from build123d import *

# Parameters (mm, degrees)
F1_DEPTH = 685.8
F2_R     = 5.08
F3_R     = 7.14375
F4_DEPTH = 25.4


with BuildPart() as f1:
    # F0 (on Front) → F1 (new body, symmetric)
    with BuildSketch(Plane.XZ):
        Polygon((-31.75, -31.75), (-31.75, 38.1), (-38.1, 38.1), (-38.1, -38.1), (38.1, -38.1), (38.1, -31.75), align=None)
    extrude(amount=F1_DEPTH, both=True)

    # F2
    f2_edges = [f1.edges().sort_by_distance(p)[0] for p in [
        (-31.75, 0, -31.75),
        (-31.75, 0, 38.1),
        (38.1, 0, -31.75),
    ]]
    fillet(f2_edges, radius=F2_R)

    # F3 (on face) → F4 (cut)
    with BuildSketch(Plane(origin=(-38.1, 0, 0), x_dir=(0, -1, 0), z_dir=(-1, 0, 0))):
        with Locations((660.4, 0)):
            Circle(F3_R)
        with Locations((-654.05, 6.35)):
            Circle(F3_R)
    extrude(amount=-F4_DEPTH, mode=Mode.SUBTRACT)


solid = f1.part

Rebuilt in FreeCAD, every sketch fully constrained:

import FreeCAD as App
import Part
import Sketcher
Q = App.Units.Quantity


def edges_at(feature, points):
    """Names of the edges that pass closest to the given points."""
    edges = feature.Shape.Edges
    near = lambda p: min(range(len(edges)), key=lambda i: edges[i].distToShape(Part.Vertex(*p))[0])
    return sorted({f"Edge{near(p) + 1}" for p in points})

doc = App.newDocument("Part")
body = doc.addObject("PartDesign::Body", "Body")

sketch1 = body.newObject("Sketcher::SketchObject", "Sketch")
sketch1.AttachmentSupport = (doc.getObject("XZ_Plane"), [""])
sketch1.MapMode = "FlatFace"
sketch1.addGeometry([
    Part.LineSegment(App.Vector(-31.75, -31.75, 0), App.Vector(-31.75, 38.1, 0)),
    Part.LineSegment(App.Vector(-31.75, 38.1, 0), App.Vector(-38.1, 38.1, 0)),
    Part.LineSegment(App.Vector(-38.1, 38.1, 0), App.Vector(-38.1, -38.1, 0)),
    Part.LineSegment(App.Vector(-38.1, -38.1, 0), App.Vector(38.1, -38.1, 0)),
    Part.LineSegment(App.Vector(38.1, -38.1, 0), App.Vector(38.1, -31.75, 0)),
    Part.LineSegment(App.Vector(38.1, -31.75, 0), App.Vector(-31.75, -31.75, 0)),
], False)
sketch1.addConstraint([
    Sketcher.Constraint("Coincident", 0, 2, 1, 1),
    Sketcher.Constraint("Coincident", 1, 2, 2, 1),
    Sketcher.Constraint("Coincident", 2, 2, 3, 1),
    Sketcher.Constraint("Coincident", 3, 2, 4, 1),
    Sketcher.Constraint("Coincident", 4, 2, 5, 1),
    Sketcher.Constraint("Coincident", 5, 2, 0, 1),
    Sketcher.Constraint("Vertical", 0),
    Sketcher.Constraint("Horizontal", 1),
    Sketcher.Constraint("Vertical", 2),
    Sketcher.Constraint("Horizontal", 3),
    Sketcher.Constraint("Vertical", 4),
    Sketcher.Constraint("Horizontal", 5),
    Sketcher.Constraint("Symmetric", 1, 2, 3, 2, -1, 1),
    Sketcher.Constraint("Equal", 5, 0),
    Sketcher.Constraint("Equal", 3, 2),
    Sketcher.Constraint("DistanceX", 3, 1, 3, 2, Q("3 in")),
    Sketcher.Constraint("DistanceX", 1, 2, 1, 1, Q("0.25 in")),
])
pad1 = body.newObject("PartDesign::Pad", "Pad")
pad1.Profile = sketch1
pad1.Length = Q("54 in")
pad1.Midplane = True
doc.recompute()

fillet = body.newObject("PartDesign::Fillet", "Fillet")
fillet.Base = (pad1, edges_at(pad1, [(-31.75, 0, -31.75), (-31.75, 0, 38.1), (38.1, 0, -31.75)]))
fillet.Radius = Q("0.2 in")

sketch2 = body.newObject("Sketcher::SketchObject", "Sketch001")
sketch2.AttachmentSupport = (doc.getObject("YZ_Plane"), [""])
sketch2.MapMode = "FlatFace"
sketch2.AttachmentOffset = App.Placement(App.Vector(0, 0, -1.5 * 25.4), App.Rotation())
sketch2.addGeometry([
    Part.Circle(App.Vector(-660.4, 0, 0), App.Vector(0, 0, 1), 7.14375),
    Part.Circle(App.Vector(654.05, 6.35, 0), App.Vector(0, 0, 1), 7.14375),
], False)
sketch2.addConstraint([
    Sketcher.Constraint("Equal", 0, 1),
    Sketcher.Constraint("PointOnObject", 0, 3, -1),
    Sketcher.Constraint("Diameter", 0, Q("0.5625 in")),
    Sketcher.Constraint("DistanceX", 0, 3, -1, 1, Q("26 in")),
    Sketcher.Constraint("DistanceX", -1, 1, 1, 3, Q("25.75 in")),
    Sketcher.Constraint("DistanceY", -1, 1, 1, 3, Q("0.25 in")),
])
pocket1 = body.newObject("PartDesign::Pocket", "Pocket")
pocket1.Profile = sketch2
pocket1.Length = Q("1 in")
pocket1.Reversed = True

doc.recompute()
